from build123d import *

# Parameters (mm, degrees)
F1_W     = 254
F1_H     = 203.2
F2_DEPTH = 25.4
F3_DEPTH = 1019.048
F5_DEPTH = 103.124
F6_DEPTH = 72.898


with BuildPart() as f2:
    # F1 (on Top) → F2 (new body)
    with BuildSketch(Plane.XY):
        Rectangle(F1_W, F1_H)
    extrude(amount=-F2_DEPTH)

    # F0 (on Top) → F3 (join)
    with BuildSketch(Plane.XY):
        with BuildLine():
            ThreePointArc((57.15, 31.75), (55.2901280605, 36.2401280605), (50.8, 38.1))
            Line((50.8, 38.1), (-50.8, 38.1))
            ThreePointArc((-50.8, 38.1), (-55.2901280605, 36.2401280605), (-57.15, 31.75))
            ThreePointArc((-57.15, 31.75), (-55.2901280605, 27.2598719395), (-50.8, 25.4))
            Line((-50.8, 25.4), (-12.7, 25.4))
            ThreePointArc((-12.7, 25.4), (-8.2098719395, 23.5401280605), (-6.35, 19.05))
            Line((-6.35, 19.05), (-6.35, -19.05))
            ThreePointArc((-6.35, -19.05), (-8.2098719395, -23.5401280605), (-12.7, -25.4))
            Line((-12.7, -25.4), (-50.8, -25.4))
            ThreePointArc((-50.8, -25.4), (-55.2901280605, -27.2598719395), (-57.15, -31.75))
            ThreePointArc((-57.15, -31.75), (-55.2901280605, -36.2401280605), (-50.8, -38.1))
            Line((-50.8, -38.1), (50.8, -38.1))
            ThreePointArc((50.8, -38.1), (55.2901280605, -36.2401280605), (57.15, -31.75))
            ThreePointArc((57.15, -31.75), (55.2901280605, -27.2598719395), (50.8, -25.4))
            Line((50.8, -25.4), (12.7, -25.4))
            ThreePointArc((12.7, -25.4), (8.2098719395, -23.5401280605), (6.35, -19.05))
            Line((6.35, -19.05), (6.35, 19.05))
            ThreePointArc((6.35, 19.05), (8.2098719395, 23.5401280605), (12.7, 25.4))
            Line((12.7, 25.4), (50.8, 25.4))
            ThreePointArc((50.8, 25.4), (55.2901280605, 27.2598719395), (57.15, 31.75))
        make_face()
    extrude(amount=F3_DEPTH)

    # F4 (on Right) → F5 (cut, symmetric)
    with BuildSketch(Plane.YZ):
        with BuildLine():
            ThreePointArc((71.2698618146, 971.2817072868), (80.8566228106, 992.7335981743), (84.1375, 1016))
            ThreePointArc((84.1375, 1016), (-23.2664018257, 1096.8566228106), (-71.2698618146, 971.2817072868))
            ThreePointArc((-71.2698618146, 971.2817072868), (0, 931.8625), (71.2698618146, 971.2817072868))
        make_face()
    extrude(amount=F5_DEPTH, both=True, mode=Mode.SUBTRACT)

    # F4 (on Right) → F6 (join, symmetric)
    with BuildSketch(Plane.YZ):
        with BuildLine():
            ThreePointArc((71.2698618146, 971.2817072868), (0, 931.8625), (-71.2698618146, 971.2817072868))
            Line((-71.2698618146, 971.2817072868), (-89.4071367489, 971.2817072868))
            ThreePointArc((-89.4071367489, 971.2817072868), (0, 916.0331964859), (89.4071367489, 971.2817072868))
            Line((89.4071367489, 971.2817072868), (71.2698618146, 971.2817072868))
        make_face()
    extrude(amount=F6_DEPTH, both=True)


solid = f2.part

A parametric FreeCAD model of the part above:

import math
import FreeCAD as App
import Part
import Sketcher

V = App.Vector
Q = App.Units.Quantity

doc = App.newDocument("Part")
params = doc.addObject("Spreadsheet::Sheet", "Params")
for row, (alias, value) in enumerate([
    ("sketch1_width", "10 in"),
    ("sketch1_height", "8 in"),
    ("pad1_length", "1 in"),
    ("sketch2_width", "4 in"),
    ("sketch2_radius", "0.25 in"),
    ("sketch2_width2", "1.5 in"),
    ("pad2_length", "40.12 in"),
    ("sketch3_radius", "3.3125 in"),
    ("pocket1_length", "8.12 in"),
    ("sketch4_radius", "3.3125 in"),
    ("pad3_length", "5.74 in"),
], start=1):
    params.set(f"A{row}", alias)
    params.set(f"B{row}", "=" + value)
    params.setAlias(f"B{row}", alias)

body = doc.addObject("PartDesign::Body", "Body")

sketch1 = body.newObject("Sketcher::SketchObject", "Sketch")
sketch1.AttachmentSupport = (doc.getObject("XY_Plane"), [""])
sketch1.MapMode = "FlatFace"
sketch1.addGeometry(Part.LineSegment(V(-127, 101.6, 0), V(-127, -101.6, 0)), False)
sketch1.addGeometry(Part.LineSegment(V(-127, -101.6, 0), V(127, -101.6, 0)), False)
sketch1.addGeometry(Part.LineSegment(V(127, -101.6, 0), V(127, 101.6, 0)), False)
sketch1.addGeometry(Part.LineSegment(V(127, 101.6, 0), V(-127, 101.6, 0)), False)
sketch1.addConstraint(Sketcher.Constraint("Coincident", 0, 2, 1, 1))
sketch1.addConstraint(Sketcher.Constraint("Coincident", 1, 2, 2, 1))
sketch1.addConstraint(Sketcher.Constraint("Coincident", 2, 2, 3, 1))
sketch1.addConstraint(Sketcher.Constraint("Coincident", 3, 2, 0, 1))
sketch1.addConstraint(Sketcher.Constraint("Vertical", 0))
sketch1.addConstraint(Sketcher.Constraint("Horizontal", 1))
sketch1.addConstraint(Sketcher.Constraint("Vertical", 2))
sketch1.addConstraint(Sketcher.Constraint("Horizontal", 3))
sketch1.addConstraint(Sketcher.Constraint("Symmetric", 0, 2, 2, 2, -1, 1))
sketch1.addConstraint(Sketcher.Constraint("DistanceX", 1, 1, 1, 2, Q("10 in")))
sketch1.addConstraint(Sketcher.Constraint("DistanceY", 0, 2, 0, 1, Q("8 in")))
sketch1.setExpression("Constraints[9]", "Params.sketch1_width")
sketch1.setExpression("Constraints[10]", "Params.sketch1_height")
pad1 = body.newObject("PartDesign::Pad", "Pad")
pad1.Profile = sketch1
pad1.setExpression("Length", "Params.pad1_length")
pad1.Reversed = True

sketch2 = body.newObject("Sketcher::SketchObject", "Sketch001")
sketch2.AttachmentSupport = (doc.getObject("XY_Plane"), [""])
sketch2.MapMode = "FlatFace"
sketch2.addGeometry(Part.ArcOfCircle(Part.Circle(V(50.8, 31.75, 0), V(0, 0, 1), 6.35), math.radians(0), math.radians(90)), False)
sketch2.addGeometry(Part.LineSegment(V(50.8, 38.1, 0), V(-50.8, 38.1, 0)), False)
sketch2.addGeometry(Part.ArcOfCircle(Part.Circle(V(-50.8, 31.75, 0), V(0, 0, 1), 6.35), math.radians(90), math.radians(180)), False)
sketch2.addGeometry(Part.ArcOfCircle(Part.Circle(V(-50.8, 31.75, 0), V(0, 0, 1), 6.35), math.radians(180), math.radians(270)), False)
sketch2.addGeometry(Part.LineSegment(V(-50.8, 25.4, 0), V(-12.7, 25.4, 0)), False)
sketch2.addGeometry(Part.ArcOfCircle(Part.Circle(V(-12.7, 19.05, 0), V(0, 0, 1), 6.35), math.radians(0), math.radians(90)), False)
sketch2.addGeometry(Part.LineSegment(V(-6.35, 19.05, 0), V(-6.35, -19.05, 0)), False)
sketch2.addGeometry(Part.ArcOfCircle(Part.Circle(V(-12.7, -19.05, 0), V(0, 0, 1), 6.35), math.radians(-90), math.radians(0)), False)
sketch2.addGeometry(Part.LineSegment(V(-12.7, -25.4, 0), V(-50.8, -25.4, 0)), False)
sketch2.addGeometry(Part.ArcOfCircle(Part.Circle(V(-50.8, -31.75, 0), V(0, 0, 1), 6.35), math.radians(90), math.radians(180)), False)
sketch2.addGeometry(Part.ArcOfCircle(Part.Circle(V(-50.8, -31.75, 0), V(0, 0, 1), 6.35), math.radians(180), math.radians(270)), False)
sketch2.addGeometry(Part.LineSegment(V(-50.8, -38.1, 0), V(50.8, -38.1, 0)), False)
sketch2.addGeometry(Part.ArcOfCircle(Part.Circle(V(50.8, -31.75, 0), V(0, 0, 1), 6.35), math.radians(-90), math.radians(0)), False)
sketch2.addGeometry(Part.ArcOfCircle(Part.Circle(V(50.8, -31.75, 0), V(0, 0, 1), 6.35), math.radians(0), math.radians(90)), False)
sketch2.addGeometry(Part.LineSegment(V(50.8, -25.4, 0), V(12.7, -25.4, 0)), False)
sketch2.addGeometry(Part.ArcOfCircle(Part.Circle(V(12.7, -19.05, 0), V(0, 0, 1), 6.35), math.radians(180), math.radians(270)), False)
sketch2.addGeometry(Part.LineSegment(V(6.35, -19.05, 0), V(6.35, 19.05, 0)), False)
sketch2.addGeometry(Part.ArcOfCircle(Part.Circle(V(12.7, 19.05, 0), V(0, 0, 1), 6.35), math.radians(90), math.radians(180)), False)
sketch2.addGeometry(Part.LineSegment(V(12.7, 25.4, 0), V(50.8, 25.4, 0)), False)
sketch2.addGeometry(Part.ArcOfCircle(Part.Circle(V(50.8, 31.75, 0), V(0, 0, 1), 6.35), math.radians(-90), math.radians(0)), False)
sketch2.addConstraint(Sketcher.Constraint("Tangent", 0, 2, 1, 1))
sketch2.addConstraint(Sketcher.Constraint("Tangent", 1, 2, 2, 1))
sketch2.addConstraint(Sketcher.Constraint("Tangent", 2, 2, 3, 1))
sketch2.addConstraint(Sketcher.Constraint("Tangent", 3, 2, 4, 1))
sketch2.addConstraint(Sketcher.Constraint("Tangent", 4, 2, 5, 2))
sketch2.addConstraint(Sketcher.Constraint("Tangent", 5, 1, 6, 1))
sketch2.addConstraint(Sketcher.Constraint("Tangent", 6, 2, 7, 2))
sketch2.addConstraint(Sketcher.Constraint("Tangent", 7, 1, 8, 1))
sketch2.addConstraint(Sketcher.Constraint("Tangent", 8, 2, 9, 1))
sketch2.addConstraint(Sketcher.Constraint("Tangent", 9, 2, 10, 1))
sketch2.addConstraint(Sketcher.Constraint("Tangent", 10, 2, 11, 1))
sketch2.addConstraint(Sketcher.Constraint("Tangent", 11, 2, 12, 1))
sketch2.addConstraint(Sketcher.Constraint("Tangent", 12, 2, 13, 1))
sketch2.addConstraint(Sketcher.Constraint("Tangent", 13, 2, 14, 1))
sketch2.addConstraint(Sketcher.Constraint("Tangent", 14, 2, 15, 2))
sketch2.addConstraint(Sketcher.Constraint("Tangent", 15, 1, 16, 1))
sketch2.addConstraint(Sketcher.Constraint("Tangent", 16, 2, 17, 2))
sketch2.addConstraint(Sketcher.Constraint("Tangent", 17, 1, 18, 1))
sketch2.addConstraint(Sketcher.Constraint("Tangent", 18, 2, 19, 1))
sketch2.addConstraint(Sketcher.Constraint("Tangent", 19, 2, 0, 1))
sketch2.addConstraint(Sketcher.Constraint("Horizontal", 1))
sketch2.addConstraint(Sketcher.Constraint("Horizontal", 4))
sketch2.addConstraint(Sketcher.Constraint("Vertical", 6))
sketch2.addConstraint(Sketcher.Constraint("Horizontal", 8))
sketch2.addConstraint(Sketcher.Constraint("Horizontal", 11))
sketch2.addConstraint(Sketcher.Constraint("Horizontal", 14))
sketch2.addConstraint(Sketcher.Constraint("Vertical", 16))
sketch2.addConstraint(Sketcher.Constraint("Horizontal", 18))
sketch2.addConstraint(Sketcher.Constraint("Equal", 0, 2))
sketch2.addConstraint(Sketcher.Constraint("Equal", 2, 3))
sketch2.addConstraint(Sketcher.Constraint("Equal", 3, 5))
sketch2.addConstraint(Sketcher.Constraint("Equal", 5, 7))
sketch2.addConstraint(Sketcher.Constraint("Equal", 7, 9))
sketch2.addConstraint(Sketcher.Constraint("Equal", 9, 10))
sketch2.addConstraint(Sketcher.Constraint("Equal", 10, 12))
sketch2.addConstraint(Sketcher.Constraint("Equal", 12, 13))
sketch2.addConstraint(Sketcher.Constraint("Equal", 13, 15))
sketch2.addConstraint(Sketcher.Constraint("Equal", 15, 17))
sketch2.addConstraint(Sketcher.Constraint("Equal", 17, 19))
sketch2.addConstraint(Sketcher.Constraint("Symmetric", 0, 3, 9, 3, -1, 1))
sketch2.addConstraint(Sketcher.Constraint("Symmetric", 2, 2, 12, 2, -1, 1))
sketch2.addConstraint(Sketcher.Constraint("Symmetric", 9, 2, 12, 2, -2))
sketch2.addConstraint(Sketcher.Constraint("Horizontal", 19, 3, 2, 2))
sketch2.addConstraint(Sketcher.Constraint("Horizontal", 2, 2, 19, 2))
sketch2.addConstraint(Sketcher.Constraint("Equal", 8, 14))
sketch2.addConstraint(Sketcher.Constraint("Equal", 18, 6))
sketch2.addConstraint(Sketcher.Constraint("DistanceX", 1, 2, 1, 1, Q("4 in")))
sketch2.addConstraint(Sketcher.Constraint("Radius", 0, Q("0.25 in")))
sketch2.addConstraint(Sketcher.Constraint("DistanceX", 4, 1, 4, 2, Q("1.5 in")))
sketch2.setExpression("Constraints[46]", "Params.sketch2_width")
sketch2.setExpression("Constraints[47]", "Params.sketch2_radius")
sketch2.setExpression("Constraints[48]", "Params.sketch2_width2")
pad2 = body.newObject("PartDesign::Pad", "Pad001")
pad2.Profile = sketch2
pad2.setExpression("Length", "Params.pad2_length")

sketch3 = body.newObject("Sketcher::SketchObject", "Sketch002")
sketch3.AttachmentSupport = (doc.getObject("YZ_Plane"), [""])
sketch3.MapMode = "FlatFace"
sketch3.addGeometry(Part.ArcOfCircle(Part.Circle(V(0, 1016, 0), V(0, 0, 1), 84.1375), math.radians(-32.106226), math.radians(212.106226)), False)
sketch3.addGeometry(Part.ArcOfCircle(Part.Circle(V(0, 1016, 0), V(0, 0, 1), 84.1375), math.radians(-147.893774), math.radians(-32.106226)), False)
sketch3.addConstraint(Sketcher.Constraint("Tangent", 0, 1, 1, 2))
sketch3.addConstraint(Sketcher.Constraint("Coincident", 1, 1, 0, 2))
sketch3.addConstraint(Sketcher.Constraint("Symmetric", 0, 1, 1, 1, -2))
sketch3.addConstraint(Sketcher.Constraint("DistanceY", -1, 1, 0, 3, Q("40 in")))
sketch3.addConstraint(Sketcher.Constraint("Radius", 0, Q("3.3125 in")))
sketch3.addConstraint(Sketcher.Constraint("DistanceX", -1, 1, 0, 1, Q("2.8059001 in")))
sketch3.setExpression("Constraints[4]", "Params.sketch3_radius")
pocket1 = body.newObject("PartDesign::Pocket", "Pocket")
pocket1.Profile = sketch3
pocket1.setExpression("Length", "Params.pocket1_length")
pocket1.Midplane = True

sketch4 = body.newObject("Sketcher::SketchObject", "Sketch003")
sketch4.AttachmentSupport = (doc.getObject("YZ_Plane"), [""])
sketch4.MapMode = "FlatFace"
sketch4.addGeometry(Part.ArcOfCircle(Part.Circle(V(0, 1016, 0), V(0, 0, 1), 84.1375), math.radians(-147.893774), math.radians(-32.106226)), False)
sketch4.addGeometry(Part.LineSegment(V(-71.269862, 971.281707, 0), V(-89.407137, 971.281707, 0)), False)
sketch4.addGeometry(Part.ArcOfCircle(Part.Circle(V(0, 1016, 0), V(0, 0, 1), 99.966804), math.radians(-153.427401), math.radians(-26.572599)), False)
sketch4.addGeometry(Part.LineSegment(V(89.407137, 971.281707, 0), V(71.269862, 971.281707, 0)), False)
sketch4.addConstraint(Sketcher.Constraint("Coincident", 0, 1, 1, 1))
sketch4.addConstraint(Sketcher.Constraint("Coincident", 1, 2, 2, 1))
sketch4.addConstraint(Sketcher.Constraint("Coincident", 2, 2, 3, 1))
sketch4.addConstraint(Sketcher.Constraint("Coincident", 3, 2, 0, 2))
sketch4.addConstraint(Sketcher.Constraint("Horizontal", 1))
sketch4.addConstraint(Sketcher.Constraint("Horizontal", 3))
sketch4.addConstraint(Sketcher.Constraint("Coincident", 2, 3, 0, 3))
sketch4.addConstraint(Sketcher.Constraint("Symmetric", 1, 2, 2, 2, -2))
sketch4.addConstraint(Sketcher.Constraint("DistanceY", -1, 1, 0, 3, Q("40 in")))
sketch4.addConstraint(Sketcher.Constraint("Radius", 0, Q("3.3125 in")))
sketch4.addConstraint(Sketcher.Constraint("DistanceX", 0, 1, -1, 1, Q("2.8059001 in")))
sketch4.addConstraint(Sketcher.Constraint("Radius", 2, Q("99.966804 mm")))
sketch4.setExpression("Constraints[9]", "Params.sketch4_radius")
pad3 = body.newObject("PartDesign::Pad", "Pad002")
pad3.Profile = sketch4
pad3.setExpression("Length", "Params.pad3_length")
pad3.Midplane = True

doc.recompute()
